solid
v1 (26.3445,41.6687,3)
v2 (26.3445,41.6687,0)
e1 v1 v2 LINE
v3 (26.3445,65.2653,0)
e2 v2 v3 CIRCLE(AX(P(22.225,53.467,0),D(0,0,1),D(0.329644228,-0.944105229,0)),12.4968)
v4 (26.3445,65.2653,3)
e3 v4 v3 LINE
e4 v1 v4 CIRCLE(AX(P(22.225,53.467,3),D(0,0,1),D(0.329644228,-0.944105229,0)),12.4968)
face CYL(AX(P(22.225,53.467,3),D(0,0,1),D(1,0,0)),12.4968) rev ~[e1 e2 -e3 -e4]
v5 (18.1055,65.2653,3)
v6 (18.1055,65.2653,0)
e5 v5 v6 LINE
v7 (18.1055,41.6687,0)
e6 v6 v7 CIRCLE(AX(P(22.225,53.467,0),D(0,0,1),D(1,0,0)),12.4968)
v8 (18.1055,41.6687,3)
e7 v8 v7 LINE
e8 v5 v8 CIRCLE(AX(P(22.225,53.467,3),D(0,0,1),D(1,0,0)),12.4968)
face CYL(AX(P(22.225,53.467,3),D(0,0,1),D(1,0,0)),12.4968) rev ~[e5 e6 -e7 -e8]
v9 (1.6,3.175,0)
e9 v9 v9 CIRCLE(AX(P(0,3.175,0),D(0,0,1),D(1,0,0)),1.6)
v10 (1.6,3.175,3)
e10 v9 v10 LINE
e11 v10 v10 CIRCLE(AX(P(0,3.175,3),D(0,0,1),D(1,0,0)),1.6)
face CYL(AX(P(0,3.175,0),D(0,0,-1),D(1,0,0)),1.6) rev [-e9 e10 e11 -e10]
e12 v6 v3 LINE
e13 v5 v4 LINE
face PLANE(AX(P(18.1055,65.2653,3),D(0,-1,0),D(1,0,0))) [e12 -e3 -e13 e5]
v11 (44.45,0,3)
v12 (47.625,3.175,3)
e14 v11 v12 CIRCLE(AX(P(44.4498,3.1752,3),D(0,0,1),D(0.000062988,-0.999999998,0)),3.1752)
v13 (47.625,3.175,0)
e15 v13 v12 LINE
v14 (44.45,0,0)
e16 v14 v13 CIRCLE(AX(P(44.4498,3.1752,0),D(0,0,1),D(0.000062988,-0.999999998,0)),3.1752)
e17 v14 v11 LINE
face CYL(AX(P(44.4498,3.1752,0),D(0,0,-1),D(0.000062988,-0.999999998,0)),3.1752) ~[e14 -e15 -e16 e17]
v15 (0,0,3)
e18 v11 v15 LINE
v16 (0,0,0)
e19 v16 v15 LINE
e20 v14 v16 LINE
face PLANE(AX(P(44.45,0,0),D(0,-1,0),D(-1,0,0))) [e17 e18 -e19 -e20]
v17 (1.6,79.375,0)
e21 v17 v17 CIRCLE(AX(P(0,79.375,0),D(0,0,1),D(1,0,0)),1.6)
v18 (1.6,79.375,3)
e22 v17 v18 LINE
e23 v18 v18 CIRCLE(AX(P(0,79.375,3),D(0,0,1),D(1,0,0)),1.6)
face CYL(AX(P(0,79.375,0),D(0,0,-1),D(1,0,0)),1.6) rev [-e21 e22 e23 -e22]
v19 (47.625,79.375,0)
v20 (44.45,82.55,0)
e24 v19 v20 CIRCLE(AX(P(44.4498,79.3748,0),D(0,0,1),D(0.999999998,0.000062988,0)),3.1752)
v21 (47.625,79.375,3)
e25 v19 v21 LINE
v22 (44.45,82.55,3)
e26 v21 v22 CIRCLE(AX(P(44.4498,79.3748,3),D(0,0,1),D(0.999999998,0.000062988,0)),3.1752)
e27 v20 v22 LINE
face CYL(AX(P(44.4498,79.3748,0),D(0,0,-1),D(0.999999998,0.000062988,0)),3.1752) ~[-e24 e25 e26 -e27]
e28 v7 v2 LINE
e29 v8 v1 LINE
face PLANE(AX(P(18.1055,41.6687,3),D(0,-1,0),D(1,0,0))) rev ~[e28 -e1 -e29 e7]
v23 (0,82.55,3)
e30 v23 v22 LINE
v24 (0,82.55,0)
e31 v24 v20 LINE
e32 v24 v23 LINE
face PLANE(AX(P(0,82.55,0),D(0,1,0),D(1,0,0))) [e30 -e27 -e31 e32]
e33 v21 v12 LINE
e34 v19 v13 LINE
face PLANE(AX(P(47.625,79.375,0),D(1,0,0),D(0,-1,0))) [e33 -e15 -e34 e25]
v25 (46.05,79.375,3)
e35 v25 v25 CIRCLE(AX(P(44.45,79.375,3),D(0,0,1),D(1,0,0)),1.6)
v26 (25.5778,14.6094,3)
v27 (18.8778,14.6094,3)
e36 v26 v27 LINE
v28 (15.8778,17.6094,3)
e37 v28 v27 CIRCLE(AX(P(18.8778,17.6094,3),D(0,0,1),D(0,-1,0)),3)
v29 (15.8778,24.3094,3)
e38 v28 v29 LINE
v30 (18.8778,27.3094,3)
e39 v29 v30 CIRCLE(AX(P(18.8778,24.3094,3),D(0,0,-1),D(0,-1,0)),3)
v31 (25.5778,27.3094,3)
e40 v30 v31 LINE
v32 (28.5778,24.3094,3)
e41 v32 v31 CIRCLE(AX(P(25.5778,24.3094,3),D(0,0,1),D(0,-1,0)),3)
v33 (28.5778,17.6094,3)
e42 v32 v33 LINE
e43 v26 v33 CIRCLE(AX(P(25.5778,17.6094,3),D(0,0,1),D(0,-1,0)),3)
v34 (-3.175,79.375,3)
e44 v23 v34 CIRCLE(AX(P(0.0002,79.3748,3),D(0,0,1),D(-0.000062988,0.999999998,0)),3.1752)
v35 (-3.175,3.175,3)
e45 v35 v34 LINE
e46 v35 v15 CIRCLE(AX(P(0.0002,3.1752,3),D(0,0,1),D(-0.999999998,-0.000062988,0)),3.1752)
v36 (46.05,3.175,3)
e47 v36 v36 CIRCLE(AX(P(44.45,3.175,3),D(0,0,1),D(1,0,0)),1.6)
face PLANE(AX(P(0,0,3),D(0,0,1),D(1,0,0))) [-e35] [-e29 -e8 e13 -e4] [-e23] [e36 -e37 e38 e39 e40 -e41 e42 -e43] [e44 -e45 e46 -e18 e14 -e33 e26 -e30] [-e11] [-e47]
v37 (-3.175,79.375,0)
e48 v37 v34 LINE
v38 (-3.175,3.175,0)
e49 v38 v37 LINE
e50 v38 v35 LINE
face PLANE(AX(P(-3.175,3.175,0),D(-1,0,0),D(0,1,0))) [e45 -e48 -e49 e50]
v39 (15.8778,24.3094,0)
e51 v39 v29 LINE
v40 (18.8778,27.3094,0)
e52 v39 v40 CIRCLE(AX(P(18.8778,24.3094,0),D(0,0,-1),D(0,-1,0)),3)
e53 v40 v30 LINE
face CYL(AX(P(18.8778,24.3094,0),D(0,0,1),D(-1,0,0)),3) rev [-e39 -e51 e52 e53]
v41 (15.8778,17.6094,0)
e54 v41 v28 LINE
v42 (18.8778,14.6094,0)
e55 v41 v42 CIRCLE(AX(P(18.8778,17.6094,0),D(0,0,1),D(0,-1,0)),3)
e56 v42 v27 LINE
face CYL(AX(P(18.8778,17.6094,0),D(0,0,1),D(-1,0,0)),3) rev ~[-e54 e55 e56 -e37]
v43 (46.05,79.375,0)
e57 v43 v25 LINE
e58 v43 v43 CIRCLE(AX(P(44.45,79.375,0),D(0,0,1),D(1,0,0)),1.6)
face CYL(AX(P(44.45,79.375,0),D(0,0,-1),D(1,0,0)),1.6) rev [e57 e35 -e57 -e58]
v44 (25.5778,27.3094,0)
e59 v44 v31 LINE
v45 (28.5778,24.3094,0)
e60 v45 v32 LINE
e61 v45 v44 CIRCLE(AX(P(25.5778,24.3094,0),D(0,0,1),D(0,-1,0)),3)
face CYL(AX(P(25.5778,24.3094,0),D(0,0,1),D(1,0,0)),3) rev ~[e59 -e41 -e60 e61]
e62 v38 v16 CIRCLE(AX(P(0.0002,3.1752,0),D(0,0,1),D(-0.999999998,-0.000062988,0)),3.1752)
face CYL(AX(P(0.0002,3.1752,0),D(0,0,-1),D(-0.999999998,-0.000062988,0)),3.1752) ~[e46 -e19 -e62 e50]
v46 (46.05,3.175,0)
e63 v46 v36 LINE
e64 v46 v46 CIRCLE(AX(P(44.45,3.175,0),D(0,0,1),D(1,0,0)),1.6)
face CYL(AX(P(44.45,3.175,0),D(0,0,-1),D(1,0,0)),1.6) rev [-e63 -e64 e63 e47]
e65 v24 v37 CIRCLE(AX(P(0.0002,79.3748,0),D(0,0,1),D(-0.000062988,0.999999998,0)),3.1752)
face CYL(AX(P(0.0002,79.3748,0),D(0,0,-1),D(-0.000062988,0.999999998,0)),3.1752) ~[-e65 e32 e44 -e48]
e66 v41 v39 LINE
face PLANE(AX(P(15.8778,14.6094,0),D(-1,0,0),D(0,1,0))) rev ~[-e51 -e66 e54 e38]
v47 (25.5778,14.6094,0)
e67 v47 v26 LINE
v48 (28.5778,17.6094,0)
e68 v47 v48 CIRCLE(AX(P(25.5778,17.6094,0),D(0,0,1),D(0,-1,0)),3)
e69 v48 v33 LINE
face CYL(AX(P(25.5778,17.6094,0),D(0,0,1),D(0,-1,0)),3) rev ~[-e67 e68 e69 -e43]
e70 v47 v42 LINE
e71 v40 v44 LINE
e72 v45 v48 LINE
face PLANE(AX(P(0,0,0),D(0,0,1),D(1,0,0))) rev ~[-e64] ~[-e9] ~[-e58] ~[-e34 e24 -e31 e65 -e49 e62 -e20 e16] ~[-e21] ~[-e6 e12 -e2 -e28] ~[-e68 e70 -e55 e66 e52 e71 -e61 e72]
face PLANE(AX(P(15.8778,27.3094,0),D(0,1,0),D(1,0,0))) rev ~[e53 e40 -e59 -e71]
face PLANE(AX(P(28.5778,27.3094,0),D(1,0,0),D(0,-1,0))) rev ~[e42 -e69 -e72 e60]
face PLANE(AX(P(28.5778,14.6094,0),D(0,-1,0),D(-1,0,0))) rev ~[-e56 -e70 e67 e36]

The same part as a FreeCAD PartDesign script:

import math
import FreeCAD as App
import Part
import Sketcher
from FreeCAD import Vector
Q = App.Units.Quantity


def edges_at(feature, points):
    """Names of the edges that pass closest to the given points."""
    edges = feature.Shape.Edges
    near = lambda p: min(range(len(edges)), key=lambda i: edges[i].distToShape(Part.Vertex(*p))[0])
    return sorted({f"Edge{near(p) + 1}" for p in points})


def add_polygon(sketch, points):
    """Adds a closed chain of lines whose ends are joined by coincident constraints."""
    first, n = sketch.GeometryCount, len(points)
    for a, b in zip(points, points[1:] + points[:1]):
        sketch.addGeometry(Part.LineSegment(App.Vector(*a, 0), App.Vector(*b, 0)), False)
    for i in range(n):
        sketch.addConstraint(Sketcher.Constraint("Coincident", first + i, 2, first + (i + 1) % n, 1))

doc = App.newDocument("Part")
params = doc.addObject("Spreadsheet::Sheet", "Params")
for row, (alias, value) in enumerate([
    ("sketch1_width", "0.5 in"),
    ("sketch1_height", "3 in"),
    ("sketch1_radius", "0.125 in"),
    ("sketch1_width2", "1.75 in"),
    ("pad1_length", "0.1181102 in"),
    ("fillet_radius", "0.1181102 in"),
    ("sketch2_radius", "0.492 in"),
], start=1):
    params.set(f"A{row}", alias)
    params.set(f"B{row}", "=" + value)
    params.setAlias(f"B{row}", alias)

body = doc.addObject("PartDesign::Body", "Body")

# Sketch on XY plane
sketch1 = body.newObject("Sketcher::SketchObject", "Sketch")
sketch1.AttachmentSupport = (doc.getObject("XY_Plane"), [""])
sketch1.MapMode = "FlatFace"
sketch1.addGeometry(Part.LineSegment(Vector(-3.175, 79.375, 0), Vector(-3.175, 3.175, 0)), False)  # 0
sketch1.addGeometry(Part.ArcOfCircle(Part.Circle(Vector(0.0002, 3.1752, 0), Vector(0, 0, 1), 3.1752), math.radians(-179.996391), math.radians(-90.003609)), False)  # 1
sketch1.addGeometry(Part.LineSegment(Vector(0, 0, 0), Vector(44.45, 0, 0)), False)  # 2
sketch1.addGeometry(Part.ArcOfCircle(Part.Circle(Vector(44.4498, 3.1752, 0), Vector(0, 0, 1), 3.1752), math.radians(-89.996391), math.radians(-0.003609)), False)  # 3
sketch1.addGeometry(Part.LineSegment(Vector(47.625, 3.175, 0), Vector(47.625, 79.375, 0)), False)  # 4
sketch1.addGeometry(Part.ArcOfCircle(Part.Circle(Vector(44.4498, 79.3748, 0), Vector(0, 0, 1), 3.1752), math.radians(0.003609), math.radians(89.996391)), False)  # 5
sketch1.addGeometry(Part.LineSegment(Vector(44.45, 82.55, 0), Vector(0, 82.55, 0)), False)  # 6
sketch1.addGeometry(Part.ArcOfCircle(Part.Circle(Vector(0.0002, 79.3748, 0), Vector(0, 0, 1), 3.1752), math.radians(90.003609), math.radians(179.996391)), False)  # 7
sketch1.addGeometry(Part.Circle(Vector(0, 3.175, 0), Vector(0, 0, 1), 1.6), False)  # 8
sketch1.addGeometry(Part.Circle(Vector(44.45, 3.175, 0), Vector(0, 0, 1), 1.6), False)  # 9
add_polygon(sketch1, [(15.8778, 14.6094), (15.8778, 27.3094), (28.5778, 27.3094), (28.5778, 14.6094)])  # lines 10-13
sketch1.addGeometry(Part.Circle(Vector(0, 79.375, 0), Vector(0, 0, 1), 1.6), False)  # 14
sketch1.addGeometry(Part.Circle(Vector(44.45, 79.375, 0), Vector(0, 0, 1), 1.6), False)  # 15
sketch1.addConstraint(Sketcher.Constraint("Tangent", 0, 2, 1, 1))
sketch1.addConstraint(Sketcher.Constraint("Tangent", 1, 2, 2, 1))
sketch1.addConstraint(Sketcher.Constraint("Tangent", 2, 2, 3, 1))
sketch1.addConstraint(Sketcher.Constraint("Tangent", 3, 2, 4, 1))
sketch1.addConstraint(Sketcher.Constraint("Tangent", 4, 2, 5, 1))
sketch1.addConstraint(Sketcher.Constraint("Tangent", 5, 2, 6, 1))
sketch1.addConstraint(Sketcher.Constraint("Tangent", 6, 2, 7, 1))
sketch1.addConstraint(Sketcher.Constraint("Tangent", 7, 2, 0, 1))
sketch1.addConstraint(Sketcher.Constraint("Vertical", 0))
sketch1.addConstraint(Sketcher.Constraint("Horizontal", 2))
sketch1.addConstraint(Sketcher.Constraint("Vertical", 4))
sketch1.addConstraint(Sketcher.Constraint("Horizontal", 6))
sketch1.addConstraint(Sketcher.Constraint("Vertical", 10))
sketch1.addConstraint(Sketcher.Constraint("Horizontal", 11))
sketch1.addConstraint(Sketcher.Constraint("Vertical", 12))
sketch1.addConstraint(Sketcher.Constraint("Horizontal", 13))
sketch1.addConstraint(Sketcher.Constraint("Coincident", 1, 2, -1, 1))
sketch1.addConstraint(Sketcher.Constraint("Coincident", 8, 3, 1, 3))
sketch1.addConstraint(Sketcher.Constraint("Coincident", 9, 3, 3, 3))
sketch1.addConstraint(Sketcher.Constraint("Coincident", 14, 3, 7, 3))
sketch1.addConstraint(Sketcher.Constraint("Coincident", 15, 3, 5, 3))
sketch1.addConstraint(Sketcher.Constraint("Equal", 1, 3))
sketch1.addConstraint(Sketcher.Constraint("Equal", 3, 5))
sketch1.addConstraint(Sketcher.Constraint("Equal", 5, 7))
sketch1.addConstraint(Sketcher.Constraint("Equal", 8, 9))
sketch1.addConstraint(Sketcher.Constraint("Equal", 9, 14))
sketch1.addConstraint(Sketcher.Constraint("Equal", 14, 15))
sketch1.addConstraint(Sketcher.Constraint("Equal", 13, 10))
sketch1.addConstraint(Sketcher.Constraint("DistanceX", 11, 1, 11, 2, Q("0.5 in")))
sketch1.addConstraint(Sketcher.Constraint("DistanceY", 0, 2, 0, 1, Q("3 in")))
sketch1.addConstraint(Sketcher.Constraint("Radius", 1, Q("0.125 in")))
sketch1.addConstraint(Sketcher.Constraint("DistanceX", 2, 1, 2, 2, Q("1.75 in")))
sketch1.addConstraint(Sketcher.Constraint("Diameter", 8, Q("3.2 mm")))
sketch1.addConstraint(Sketcher.Constraint("DistanceX", -1, 1, 10, 2, Q("0.6251 in")))
sketch1.addConstraint(Sketcher.Constraint("DistanceY", -1, 1, 10, 2, Q("27.3094 mm")))
sketch1.setExpression("Constraints[32]", "Params.sketch1_width")
sketch1.setExpression("Constraints[33]", "Params.sketch1_height")
sketch1.setExpression("Constraints[34]", "Params.sketch1_radius")
sketch1.setExpression("Constraints[35]", "Params.sketch1_width2")
pad1 = body.newObject("PartDesign::Pad", "Pad")
pad1.Profile = sketch1
pad1.setExpression("Length", "Params.pad1_length")
doc.recompute()

fillet = body.newObject("PartDesign::Fillet", "Fillet")
fillet.Base = (pad1, edges_at(pad1, [
    (15.878, 27.309, 1.5),
    (28.578, 27.309, 1.5),
    (15.878, 14.609, 1.5),
    (28.578, 14.609, 1.5),
]))
fillet.setExpression("Radius", "Params.fillet_radius")

# Sketch on XY plane
sketch2 = body.newObject("Sketcher::SketchObject", "Sketch001")
sketch2.AttachmentSupport = (doc.getObject("XY_Plane"), [""])
sketch2.MapMode = "FlatFace"
sketch2.AttachmentOffset = App.Placement(Vector(0, 0, 0.1181102 * 25.4), App.Rotation())
sketch2.addGeometry(Part.ArcOfCircle(Part.Circle(Vector(22.225, 53.467, 0), Vector(0, 0, 1), 12.4968), math.radians(-70.752817), math.radians(70.752817)), False)
sketch2.addGeometry(Part.LineSegment(Vector(26.3445, 65.2653, 0), Vector(18.1055, 65.2653, 0)), False)
sketch2.addGeometry(Part.ArcOfCircle(Part.Circle(Vector(22.225, 53.467, 0), Vector(0, 0, 1), 12.4968), math.radians(109.247183), math.radians(250.752817)), False)
sketch2.addGeometry(Part.LineSegment(Vector(18.1055, 41.6687, 0), Vector(26.3445, 41.6687, 0)), False)
sketch2.addConstraint(Sketcher.Constraint("Coincident", 0, 2, 1, 1))
sketch2.addConstraint(Sketcher.Constraint("Coincident", 1, 2, 2, 1))
sketch2.addConstraint(Sketcher.Constraint("Coincident", 2, 2, 3, 1))
sketch2.addConstraint(Sketcher.Constraint("Coincident", 3, 2, 0, 1))
sketch2.addConstraint(Sketcher.Constraint("Horizontal", 1))
sketch2.addConstraint(Sketcher.Constraint("Horizontal", 3))
sketch2.addConstraint(Sketcher.Constraint("Coincident", 2, 3, 0, 3))
sketch2.addConstraint(Sketcher.Constraint("Equal", 0, 2))
sketch2.addConstraint(Sketcher.Constraint("Vertical", 1, 2, 2, 2))
sketch2.addConstraint(Sketcher.Constraint("Radius", 0, Q("0.492 in")))
sketch2.addConstraint(Sketcher.Constraint("DistanceY", -1, 1, 0, 3, Q("2.105 in")))
sketch2.addConstraint(Sketcher.Constraint("DistanceY", 2, 2, 1, 2, Q("0.929 in")))
sketch2.addConstraint(Sketcher.Constraint("DistanceX", -1, 1, 0, 3, Q("0.875 in")))
sketch2.setExpression("Constraints[9]", "Params.sketch2_radius")
pocket1 = body.newObject("PartDesign::Pocket", "Pocket")
pocket1.Profile = sketch2
pocket1.Type = "ThroughAll"

doc.recompute()
